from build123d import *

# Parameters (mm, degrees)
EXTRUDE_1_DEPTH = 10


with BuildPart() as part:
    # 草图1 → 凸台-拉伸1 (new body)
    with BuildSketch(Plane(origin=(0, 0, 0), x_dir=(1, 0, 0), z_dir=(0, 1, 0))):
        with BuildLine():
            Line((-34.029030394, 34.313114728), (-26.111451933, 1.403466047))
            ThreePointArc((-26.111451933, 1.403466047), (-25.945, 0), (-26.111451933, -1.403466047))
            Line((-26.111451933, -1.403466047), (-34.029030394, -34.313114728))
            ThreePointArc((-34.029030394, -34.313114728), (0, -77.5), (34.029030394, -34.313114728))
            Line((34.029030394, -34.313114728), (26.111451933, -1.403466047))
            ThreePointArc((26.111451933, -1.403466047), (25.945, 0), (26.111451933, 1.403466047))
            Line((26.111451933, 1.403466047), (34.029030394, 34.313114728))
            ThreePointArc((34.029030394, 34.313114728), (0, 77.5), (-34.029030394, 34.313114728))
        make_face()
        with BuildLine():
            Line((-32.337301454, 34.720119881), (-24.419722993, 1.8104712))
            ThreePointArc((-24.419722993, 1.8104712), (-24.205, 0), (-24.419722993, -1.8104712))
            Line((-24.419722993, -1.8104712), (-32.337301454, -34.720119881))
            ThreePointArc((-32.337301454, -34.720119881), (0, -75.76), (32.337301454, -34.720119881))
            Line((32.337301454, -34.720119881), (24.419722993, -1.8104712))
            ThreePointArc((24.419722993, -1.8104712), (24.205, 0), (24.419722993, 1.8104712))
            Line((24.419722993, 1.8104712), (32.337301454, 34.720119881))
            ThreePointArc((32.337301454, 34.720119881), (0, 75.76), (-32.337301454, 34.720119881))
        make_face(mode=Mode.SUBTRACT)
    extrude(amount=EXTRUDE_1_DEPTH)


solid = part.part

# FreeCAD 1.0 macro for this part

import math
import FreeCAD as App
import Part
import Sketcher

V = App.Vector

doc = App.newDocument("Part")
body = doc.addObject("PartDesign::Body", "Body")

sketch1 = body.newObject("Sketcher::SketchObject", "Sketch")
sketch1.AttachmentSupport = (doc.getObject("XZ_Plane"), [""])
sketch1.MapMode = "FlatFace"
sketch1.addGeometry(Part.LineSegment(V(-34, -34.3, 0), V(-26.1, -1.4, 0)), False)
sketch1.addGeometry(Part.ArcOfCircle(Part.Circle(V(-31.9, 0, 0), V(0, 0, 1), 6), math.radians(-14), math.radians(14)), False)
sketch1.addGeometry(Part.LineSegment(V(-26.1, 1.4, 0), V(-34, 34.3, 0)), False)
sketch1.addGeometry(Part.ArcOfCircle(Part.Circle(V(0, 42.5, 0), V(0, 0, 1), 35), math.radians(-14), math.radians(194)), False)
sketch1.addGeometry(Part.LineSegment(V(34, 34.3, 0), V(26.1, 1.4, 0)), False)
sketch1.addGeometry(Part.ArcOfCircle(Part.Circle(V(31.9, 0, 0), V(0, 0, 1), 6), math.radians(166), math.radians(194)), False)
sketch1.addGeometry(Part.LineSegment(V(26.1, -1.4, 0), V(34, -34.3, 0)), False)
sketch1.addGeometry(Part.ArcOfCircle(Part.Circle(V(0, -42.5, 0), V(0, 0, 1), 35), math.radians(166), math.radians(374)), False)
sketch1.addGeometry(Part.LineSegment(V(-24.4, -1.8, 0), V(-32.3, -34.7, 0)), False)
sketch1.addGeometry(Part.ArcOfCircle(Part.Circle(V(0, -42.5, 0), V(0, 0, 1), 33.3), math.radians(166), math.radians(374)), False)
sketch1.addGeometry(Part.LineSegment(V(32.3, -34.7, 0), V(24.4, -1.8, 0)), False)
sketch1.addGeometry(Part.ArcOfCircle(Part.Circle(V(31.9, 0, 0), V(0, 0, 1), 7.7), math.radians(166), math.radians(194)), False)
sketch1.addGeometry(Part.LineSegment(V(24.4, 1.8, 0), V(32.3, 34.7, 0)), False)
sketch1.addGeometry(Part.ArcOfCircle(Part.Circle(V(0, 42.5, 0), V(0, 0, 1), 33.3), math.radians(-14), math.radians(194)), False)
sketch1.addGeometry(Part.LineSegment(V(-32.3, 34.7, 0), V(-24.4, 1.8, 0)), False)
sketch1.addGeometry(Part.ArcOfCircle(Part.Circle(V(-31.9, 0, 0), V(0, 0, 1), 7.7), math.radians(-14), math.radians(14)), False)
sketch1.addConstraint(Sketcher.Constraint("Tangent", 0, 2, 1, 1))
sketch1.addConstraint(Sketcher.Constraint("Tangent", 1, 2, 2, 1))
sketch1.addConstraint(Sketcher.Constraint("Tangent", 2, 2, 3, 2))
sketch1.addConstraint(Sketcher.Constraint("Tangent", 3, 1, 4, 1))
sketch1.addConstraint(Sketcher.Constraint("Tangent", 4, 2, 5, 1))
sketch1.addConstraint(Sketcher.Constraint("Tangent", 5, 2, 6, 1))
sketch1.addConstraint(Sketcher.Constraint("Tangent", 6, 2, 7, 2))
sketch1.addConstraint(Sketcher.Constraint("Tangent", 7, 1, 0, 1))
sketch1.addConstraint(Sketcher.Constraint("Tangent", 8, 2, 9, 1))
sketch1.addConstraint(Sketcher.Constraint("Tangent", 9, 2, 10, 1))
sketch1.addConstraint(Sketcher.Constraint("Tangent", 10, 2, 11, 2))
sketch1.addConstraint(Sketcher.Constraint("Tangent", 11, 1, 12, 1))
sketch1.addConstraint(Sketcher.Constraint("Tangent", 12, 2, 13, 1))
sketch1.addConstraint(Sketcher.Constraint("Tangent", 13, 2, 14, 1))
sketch1.addConstraint(Sketcher.Constraint("Tangent", 14, 2, 15, 2))
sketch1.addConstraint(Sketcher.Constraint("Tangent", 15, 1, 8, 1))
sketch1.addConstraint(Sketcher.Constraint("Coincident", 9, 3, 7, 3))
sketch1.addConstraint(Sketcher.Constraint("Coincident", 11, 3, 5, 3))
sketch1.addConstraint(Sketcher.Constraint("Coincident", 13, 3, 3, 3))
sketch1.addConstraint(Sketcher.Constraint("Coincident", 15, 3, 1, 3))
sketch1.addConstraint(Sketcher.Constraint("Equal", 1, 5))
sketch1.addConstraint(Sketcher.Constraint("Equal", 3, 7))
sketch1.addConstraint(Sketcher.Constraint("Equal", 9, 13))
sketch1.addConstraint(Sketcher.Constraint("Equal", 11, 15))
sketch1.addConstraint(Sketcher.Constraint("Symmetric", 1, 3, 5, 3, -1, 1))
sketch1.addConstraint(Sketcher.Constraint("Symmetric", 3, 3, 7, 3, -1, 1))
sketch1.addConstraint(Sketcher.Constraint("Symmetric", 2, 2, 3, 1, -2))
sketch1.addConstraint(Sketcher.Constraint("Parallel", 4, 8))
sketch1.addConstraint(Sketcher.Constraint("Radius", 1, 6.0))
sketch1.addConstraint(Sketcher.Constraint("Radius", 3, 35.0))
sketch1.addConstraint(Sketcher.Constraint("Radius", 9, 33.26))
sketch1.addConstraint(Sketcher.Constraint("DistanceY", 7, 3, 3, 3, 85.0))
sketch1.addConstraint(Sketcher.Constraint("DistanceX", 1, 3, 5, 3, 63.89))
pad1 = body.newObject("PartDesign::Pad", "Pad")
pad1.Profile = sketch1
pad1.Length = 10
pad1.Reversed = True

doc.recompute()
